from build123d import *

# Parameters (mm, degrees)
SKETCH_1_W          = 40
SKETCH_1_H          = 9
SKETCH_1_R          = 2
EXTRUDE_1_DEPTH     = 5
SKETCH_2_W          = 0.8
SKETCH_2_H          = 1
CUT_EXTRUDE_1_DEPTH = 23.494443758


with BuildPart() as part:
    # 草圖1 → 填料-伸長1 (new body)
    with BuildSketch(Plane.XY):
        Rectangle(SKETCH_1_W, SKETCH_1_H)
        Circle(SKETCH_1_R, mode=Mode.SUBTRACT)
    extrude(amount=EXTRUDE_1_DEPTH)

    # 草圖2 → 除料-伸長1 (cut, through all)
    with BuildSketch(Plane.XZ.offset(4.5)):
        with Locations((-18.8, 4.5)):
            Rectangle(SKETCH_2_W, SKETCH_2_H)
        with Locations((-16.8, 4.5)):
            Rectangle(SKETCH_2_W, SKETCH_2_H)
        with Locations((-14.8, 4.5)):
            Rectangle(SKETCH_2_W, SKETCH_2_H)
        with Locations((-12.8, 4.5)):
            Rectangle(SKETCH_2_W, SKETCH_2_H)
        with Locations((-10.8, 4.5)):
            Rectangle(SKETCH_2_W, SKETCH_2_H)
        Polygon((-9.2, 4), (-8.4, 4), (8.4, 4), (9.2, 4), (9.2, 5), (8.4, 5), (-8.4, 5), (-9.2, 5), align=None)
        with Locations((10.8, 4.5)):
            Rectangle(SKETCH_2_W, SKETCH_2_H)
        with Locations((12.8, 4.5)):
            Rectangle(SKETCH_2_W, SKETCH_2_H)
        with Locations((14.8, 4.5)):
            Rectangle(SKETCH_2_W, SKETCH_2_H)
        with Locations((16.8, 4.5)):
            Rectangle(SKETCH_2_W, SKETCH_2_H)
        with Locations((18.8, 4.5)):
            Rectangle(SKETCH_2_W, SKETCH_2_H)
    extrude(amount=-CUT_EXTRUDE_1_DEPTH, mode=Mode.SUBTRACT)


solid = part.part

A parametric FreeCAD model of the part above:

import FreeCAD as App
import Part
import Sketcher

V = App.Vector
Q = App.Units.Quantity

doc = App.newDocument("Part")
body = doc.addObject("PartDesign::Body", "Body")

# Sketch on XY plane
sketch1 = body.newObject("Sketcher::SketchObject", "Sketch")
sketch1.AttachmentSupport = (doc.getObject("XY_Plane"), [""])
sketch1.MapMode = "FlatFace"
sketch1.addGeometry([
    Part.LineSegment(V(-20, 4.5, 0), V(-20, -4.5, 0)),  # 0
    Part.LineSegment(V(-20, -4.5, 0), V(20, -4.5, 0)),  # 1
    Part.LineSegment(V(20, -4.5, 0), V(20, 4.5, 0)),  # 2
    Part.LineSegment(V(20, 4.5, 0), V(-20, 4.5, 0)),  # 3
    Part.Circle(V(0, 0, 0), V(0, 0, 1), 2),  # 4
], False)
sketch1.addConstraint([
    Sketcher.Constraint("Coincident", 0, 2, 1, 1),
    Sketcher.Constraint("Coincident", 1, 2, 2, 1),
    Sketcher.Constraint("Coincident", 2, 2, 3, 1),
    Sketcher.Constraint("Coincident", 3, 2, 0, 1),
    Sketcher.Constraint("Vertical", 0),
    Sketcher.Constraint("Horizontal", 1),
    Sketcher.Constraint("Vertical", 2),
    Sketcher.Constraint("Horizontal", 3),
    Sketcher.Constraint("Coincident", 4, 3, -1, 1),
    Sketcher.Constraint("Symmetric", 0, 2, 2, 2, -1, 1),
    Sketcher.Constraint("Diameter", 4, Q("4 mm")),
    Sketcher.Constraint("DistanceX", 1, 1, 1, 2, Q("40 mm")),
    Sketcher.Constraint("DistanceY", 0, 2, 0, 1, Q("9 mm")),
])
pad1 = body.newObject("PartDesign::Pad", "Pad")
pad1.Profile = sketch1
pad1.Length = 5

# Sketch on XZ plane
sketch2 = body.newObject("Sketcher::SketchObject", "Sketch001")
sketch2.AttachmentSupport = (doc.getObject("XZ_Plane"), [""])
sketch2.MapMode = "FlatFace"
sketch2.AttachmentOffset = App.Placement(V(0, 0, 4.5), App.Rotation())
sketch2.addGeometry([
    Part.LineSegment(V(-19.2, 5, 0), V(-19.2, 4, 0)),  # 0
    Part.LineSegment(V(-19.2, 4, 0), V(-18.4, 4, 0)),  # 1
    Part.LineSegment(V(-18.4, 4, 0), V(-18.4, 5, 0)),  # 2
    Part.LineSegment(V(-18.4, 5, 0), V(-19.2, 5, 0)),  # 3
    Part.LineSegment(V(-17.2, 5, 0), V(-17.2, 4, 0)),  # 4
    Part.LineSegment(V(-17.2, 4, 0), V(-16.4, 4, 0)),  # 5
    Part.LineSegment(V(-16.4, 4, 0), V(-16.4, 5, 0)),  # 6
    Part.LineSegment(V(-16.4, 5, 0), V(-17.2, 5, 0)),  # 7
    Part.LineSegment(V(-15.2, 5, 0), V(-15.2, 4, 0)),  # 8
    Part.LineSegment(V(-15.2, 4, 0), V(-14.4, 4, 0)),  # 9
    Part.LineSegment(V(-14.4, 4, 0), V(-14.4, 5, 0)),  # 10
    Part.LineSegment(V(-14.4, 5, 0), V(-15.2, 5, 0)),  # 11
    Part.LineSegment(V(-13.2, 5, 0), V(-13.2, 4, 0)),  # 12
    Part.LineSegment(V(-13.2, 4, 0), V(-12.4, 4, 0)),  # 13
    Part.LineSegment(V(-12.4, 4, 0), V(-12.4, 5, 0)),  # 14
    Part.LineSegment(V(-12.4, 5, 0), V(-13.2, 5, 0)),  # 15
    Part.LineSegment(V(-11.2, 5, 0), V(-11.2, 4, 0)),  # 16
    Part.LineSegment(V(-11.2, 4, 0), V(-10.4, 4, 0)),  # 17
    Part.LineSegment(V(-10.4, 4, 0), V(-10.4, 5, 0)),  # 18
    Part.LineSegment(V(-10.4, 5, 0), V(-11.2, 5, 0)),  # 19
    Part.LineSegment(V(-9.2, 4, 0), V(9.2, 4, 0)),  # 20
    Part.LineSegment(V(9.2, 4, 0), V(9.2, 5, 0)),  # 21
    Part.LineSegment(V(9.2, 5, 0), V(-9.2, 5, 0)),  # 22
    Part.LineSegment(V(-9.2, 5, 0), V(-9.2, 4, 0)),  # 23
    Part.LineSegment(V(10.4, 5, 0), V(10.4, 4, 0)),  # 24
    Part.LineSegment(V(10.4, 4, 0), V(11.2, 4, 0)),  # 25
    Part.LineSegment(V(11.2, 4, 0), V(11.2, 5, 0)),  # 26
    Part.LineSegment(V(11.2, 5, 0), V(10.4, 5, 0)),  # 27
    Part.LineSegment(V(12.4, 5, 0), V(12.4, 4, 0)),  # 28
    Part.LineSegment(V(12.4, 4, 0), V(13.2, 4, 0)),  # 29
    Part.LineSegment(V(13.2, 4, 0), V(13.2, 5, 0)),  # 30
    Part.LineSegment(V(13.2, 5, 0), V(12.4, 5, 0)),  # 31
    Part.LineSegment(V(14.4, 5, 0), V(14.4, 4, 0)),  # 32
    Part.LineSegment(V(14.4, 4, 0), V(15.2, 4, 0)),  # 33
    Part.LineSegment(V(15.2, 4, 0), V(15.2, 5, 0)),  # 34
    Part.LineSegment(V(15.2, 5, 0), V(14.4, 5, 0)),  # 35
    Part.LineSegment(V(16.4, 5, 0), V(16.4, 4, 0)),  # 36
    Part.LineSegment(V(16.4, 4, 0), V(17.2, 4, 0)),  # 37
    Part.LineSegment(V(17.2, 4, 0), V(17.2, 5, 0)),  # 38
    Part.LineSegment(V(17.2, 5, 0), V(16.4, 5, 0)),  # 39
    Part.LineSegment(V(18.4, 5, 0), V(18.4, 4, 0)),  # 40
    Part.LineSegment(V(18.4, 4, 0), V(19.2, 4, 0)),  # 41
    Part.LineSegment(V(19.2, 4, 0), V(19.2, 5, 0)),  # 42
    Part.LineSegment(V(19.2, 5, 0), V(18.4, 5, 0)),  # 43
], False)
sketch2.addConstraint([
    Sketcher.Constraint("Coincident", 0, 2, 1, 1),
    Sketcher.Constraint("Coincident", 1, 2, 2, 1),
    Sketcher.Constraint("Coincident", 2, 2, 3, 1),
    Sketcher.Constraint("Coincident", 3, 2, 0, 1),
    Sketcher.Constraint("Coincident", 4, 2, 5, 1),
    Sketcher.Constraint("Coincident", 5, 2, 6, 1),
    Sketcher.Constraint("Coincident", 6, 2, 7, 1),
    Sketcher.Constraint("Coincident", 7, 2, 4, 1),
    Sketcher.Constraint("Coincident", 8, 2, 9, 1),
    Sketcher.Constraint("Coincident", 9, 2, 10, 1),
    Sketcher.Constraint("Coincident", 10, 2, 11, 1),
    Sketcher.Constraint("Coincident", 11, 2, 8, 1),
    Sketcher.Constraint("Coincident", 12, 2, 13, 1),
    Sketcher.Constraint("Coincident", 13, 2, 14, 1),
    Sketcher.Constraint("Coincident", 14, 2, 15, 1),
    Sketcher.Constraint("Coincident", 15, 2, 12, 1),
    Sketcher.Constraint("Coincident", 16, 2, 17, 1),
    Sketcher.Constraint("Coincident", 17, 2, 18, 1),
    Sketcher.Constraint("Coincident", 18, 2, 19, 1),
    Sketcher.Constraint("Coincident", 19, 2, 16, 1),
    Sketcher.Constraint("Coincident", 20, 2, 21, 1),
    Sketcher.Constraint("Coincident", 21, 2, 22, 1),
    Sketcher.Constraint("Coincident", 22, 2, 23, 1),
    Sketcher.Constraint("Coincident", 23, 2, 20, 1),
    Sketcher.Constraint("Coincident", 24, 2, 25, 1),
    Sketcher.Constraint("Coincident", 25, 2, 26, 1),
    Sketcher.Constraint("Coincident", 26, 2, 27, 1),
    Sketcher.Constraint("Coincident", 27, 2, 24, 1),
    Sketcher.Constraint("Coincident", 28, 2, 29, 1),
    Sketcher.Constraint("Coincident", 29, 2, 30, 1),
    Sketcher.Constraint("Coincident", 30, 2, 31, 1),
    Sketcher.Constraint("Coincident", 31, 2, 28, 1),
    Sketcher.Constraint("Coincident", 32, 2, 33, 1),
    Sketcher.Constraint("Coincident", 33, 2, 34, 1),
    Sketcher.Constraint("Coincident", 34, 2, 35, 1),
    Sketcher.Constraint("Coincident", 35, 2, 32, 1),
    Sketcher.Constraint("Coincident", 36, 2, 37, 1),
    Sketcher.Constraint("Coincident", 37, 2, 38, 1),
    Sketcher.Constraint("Coincident", 38, 2, 39, 1),
    Sketcher.Constraint("Coincident", 39, 2, 36, 1),
    Sketcher.Constraint("Coincident", 40, 2, 41, 1),
    Sketcher.Constraint("Coincident", 41, 2, 42, 1),
    Sketcher.Constraint("Coincident", 42, 2, 43, 1),
    Sketcher.Constraint("Coincident", 43, 2, 40, 1),
    Sketcher.Constraint("Vertical", 0),
    Sketcher.Constraint("Horizontal", 1),
    Sketcher.Constraint("Vertical", 2),
    Sketcher.Constraint("Horizontal", 3),
    Sketcher.Constraint("Vertical", 4),
    Sketcher.Constraint("Horizontal", 5),
    Sketcher.Constraint("Vertical", 6),
    Sketcher.Constraint("Horizontal", 7),
    Sketcher.Constraint("Vertical", 8),
    Sketcher.Constraint("Horizontal", 9),
    Sketcher.Constraint("Vertical", 10),
    Sketcher.Constraint("Horizontal", 11),
    Sketcher.Constraint("Vertical", 12),
    Sketcher.Constraint("Horizontal", 13),
    Sketcher.Constraint("Vertical", 14),
    Sketcher.Constraint("Horizontal", 15),
    Sketcher.Constraint("Vertical", 16),
    Sketcher.Constraint("Horizontal", 17),
    Sketcher.Constraint("Vertical", 18),
    Sketcher.Constraint("Horizontal", 19),
    Sketcher.Constraint("Horizontal", 20),
    Sketcher.Constraint("Vertical", 21),
    Sketcher.Constraint("Horizontal", 22),
    Sketcher.Constraint("Vertical", 23),
    Sketcher.Constraint("Vertical", 24),
    Sketcher.Constraint("Horizontal", 25),
    Sketcher.Constraint("Vertical", 26),
    Sketcher.Constraint("Horizontal", 27),
    Sketcher.Constraint("Vertical", 28),
    Sketcher.Constraint("Horizontal", 29),
    Sketcher.Constraint("Vertical", 30),
    Sketcher.Constraint("Horizontal", 31),
    Sketcher.Constraint("Vertical", 32),
    Sketcher.Constraint("Horizontal", 33),
    Sketcher.Constraint("Vertical", 34),
    Sketcher.Constraint("Horizontal", 35),
    Sketcher.Constraint("Vertical", 36),
    Sketcher.Constraint("Horizontal", 37),
    Sketcher.Constraint("Vertical", 38),
    Sketcher.Constraint("Horizontal", 39),
    Sketcher.Constraint("Vertical", 40),
    Sketcher.Constraint("Horizontal", 41),
    Sketcher.Constraint("Vertical", 42),
    Sketcher.Constraint("Horizontal", 43),
    Sketcher.Constraint("Symmetric", 17, 2, 24, 2, -2),
    Sketcher.Constraint("Symmetric", 19, 2, 26, 2, -2),
    Sketcher.Constraint("Symmetric", 13, 2, 28, 2, -2),
    Sketcher.Constraint("Symmetric", 15, 2, 30, 2, -2),
    Sketcher.Constraint("Symmetric", 9, 2, 32, 2, -2),
    Sketcher.Constraint("Symmetric", 11, 2, 34, 2, -2),
    Sketcher.Constraint("Symmetric", 5, 2, 36, 2, -2),
    Sketcher.Constraint("Symmetric", 7, 2, 38, 2, -2),
    Sketcher.Constraint("Symmetric", 1, 2, 40, 2, -2),
    Sketcher.Constraint("Symmetric", 3, 2, 42, 2, -2),
    Sketcher.Constraint("Horizontal", 1, 2, 4, 2),
    Sketcher.Constraint("Horizontal", 3, 2, 6, 2),
    Sketcher.Constraint("Horizontal", 5, 2, 8, 2),
    Sketcher.Constraint("Horizontal", 7, 2, 10, 2),
    Sketcher.Constraint("Horizontal", 9, 2, 12, 2),
    Sketcher.Constraint("Horizontal", 11, 2, 14, 2),
    Sketcher.Constraint("Horizontal", 13, 2, 16, 2),
    Sketcher.Constraint("Horizontal", 15, 2, 18, 2),
    Sketcher.Constraint("Horizontal", 17, 2, 20, 2),
    Sketcher.Constraint("Horizontal", 19, 2, 21, 2),
    Sketcher.Constraint("Equal", 3, 5),
    Sketcher.Constraint("Equal", 7, 9),
    Sketcher.Constraint("Equal", 11, 13),
    Sketcher.Constraint("Equal", 15, 17),
    Sketcher.Constraint("DistanceY", 0, 2, 0, 1, Q("1 mm")),
    Sketcher.Constraint("DistanceX", 1, 1, 1, 2, Q("0.8 mm")),
    Sketcher.Constraint("DistanceX", 20, 1, 20, 2, Q("18.4 mm")),
    Sketcher.Constraint("DistanceY", -1, 1, 0, 2, Q("4 mm")),
    Sketcher.Constraint("DistanceX", 0, 2, 4, 2, Q("2 mm")),
    Sketcher.Constraint("DistanceX", 4, 2, 8, 2, Q("2 mm")),
    Sketcher.Constraint("DistanceX", 8, 2, 12, 2, Q("2 mm")),
    Sketcher.Constraint("DistanceX", 12, 2, 16, 2, Q("2 mm")),
    Sketcher.Constraint("DistanceX", 19, 2, 22, 2, Q("2 mm")),
    Sketcher.Constraint("DistanceX", 20, 2, 25, 2, Q("2 mm")),
])
pocket1 = body.newObject("PartDesign::Pocket", "Pocket")
pocket1.Profile = sketch2
pocket1.Type = "ThroughAll"

doc.recompute()
